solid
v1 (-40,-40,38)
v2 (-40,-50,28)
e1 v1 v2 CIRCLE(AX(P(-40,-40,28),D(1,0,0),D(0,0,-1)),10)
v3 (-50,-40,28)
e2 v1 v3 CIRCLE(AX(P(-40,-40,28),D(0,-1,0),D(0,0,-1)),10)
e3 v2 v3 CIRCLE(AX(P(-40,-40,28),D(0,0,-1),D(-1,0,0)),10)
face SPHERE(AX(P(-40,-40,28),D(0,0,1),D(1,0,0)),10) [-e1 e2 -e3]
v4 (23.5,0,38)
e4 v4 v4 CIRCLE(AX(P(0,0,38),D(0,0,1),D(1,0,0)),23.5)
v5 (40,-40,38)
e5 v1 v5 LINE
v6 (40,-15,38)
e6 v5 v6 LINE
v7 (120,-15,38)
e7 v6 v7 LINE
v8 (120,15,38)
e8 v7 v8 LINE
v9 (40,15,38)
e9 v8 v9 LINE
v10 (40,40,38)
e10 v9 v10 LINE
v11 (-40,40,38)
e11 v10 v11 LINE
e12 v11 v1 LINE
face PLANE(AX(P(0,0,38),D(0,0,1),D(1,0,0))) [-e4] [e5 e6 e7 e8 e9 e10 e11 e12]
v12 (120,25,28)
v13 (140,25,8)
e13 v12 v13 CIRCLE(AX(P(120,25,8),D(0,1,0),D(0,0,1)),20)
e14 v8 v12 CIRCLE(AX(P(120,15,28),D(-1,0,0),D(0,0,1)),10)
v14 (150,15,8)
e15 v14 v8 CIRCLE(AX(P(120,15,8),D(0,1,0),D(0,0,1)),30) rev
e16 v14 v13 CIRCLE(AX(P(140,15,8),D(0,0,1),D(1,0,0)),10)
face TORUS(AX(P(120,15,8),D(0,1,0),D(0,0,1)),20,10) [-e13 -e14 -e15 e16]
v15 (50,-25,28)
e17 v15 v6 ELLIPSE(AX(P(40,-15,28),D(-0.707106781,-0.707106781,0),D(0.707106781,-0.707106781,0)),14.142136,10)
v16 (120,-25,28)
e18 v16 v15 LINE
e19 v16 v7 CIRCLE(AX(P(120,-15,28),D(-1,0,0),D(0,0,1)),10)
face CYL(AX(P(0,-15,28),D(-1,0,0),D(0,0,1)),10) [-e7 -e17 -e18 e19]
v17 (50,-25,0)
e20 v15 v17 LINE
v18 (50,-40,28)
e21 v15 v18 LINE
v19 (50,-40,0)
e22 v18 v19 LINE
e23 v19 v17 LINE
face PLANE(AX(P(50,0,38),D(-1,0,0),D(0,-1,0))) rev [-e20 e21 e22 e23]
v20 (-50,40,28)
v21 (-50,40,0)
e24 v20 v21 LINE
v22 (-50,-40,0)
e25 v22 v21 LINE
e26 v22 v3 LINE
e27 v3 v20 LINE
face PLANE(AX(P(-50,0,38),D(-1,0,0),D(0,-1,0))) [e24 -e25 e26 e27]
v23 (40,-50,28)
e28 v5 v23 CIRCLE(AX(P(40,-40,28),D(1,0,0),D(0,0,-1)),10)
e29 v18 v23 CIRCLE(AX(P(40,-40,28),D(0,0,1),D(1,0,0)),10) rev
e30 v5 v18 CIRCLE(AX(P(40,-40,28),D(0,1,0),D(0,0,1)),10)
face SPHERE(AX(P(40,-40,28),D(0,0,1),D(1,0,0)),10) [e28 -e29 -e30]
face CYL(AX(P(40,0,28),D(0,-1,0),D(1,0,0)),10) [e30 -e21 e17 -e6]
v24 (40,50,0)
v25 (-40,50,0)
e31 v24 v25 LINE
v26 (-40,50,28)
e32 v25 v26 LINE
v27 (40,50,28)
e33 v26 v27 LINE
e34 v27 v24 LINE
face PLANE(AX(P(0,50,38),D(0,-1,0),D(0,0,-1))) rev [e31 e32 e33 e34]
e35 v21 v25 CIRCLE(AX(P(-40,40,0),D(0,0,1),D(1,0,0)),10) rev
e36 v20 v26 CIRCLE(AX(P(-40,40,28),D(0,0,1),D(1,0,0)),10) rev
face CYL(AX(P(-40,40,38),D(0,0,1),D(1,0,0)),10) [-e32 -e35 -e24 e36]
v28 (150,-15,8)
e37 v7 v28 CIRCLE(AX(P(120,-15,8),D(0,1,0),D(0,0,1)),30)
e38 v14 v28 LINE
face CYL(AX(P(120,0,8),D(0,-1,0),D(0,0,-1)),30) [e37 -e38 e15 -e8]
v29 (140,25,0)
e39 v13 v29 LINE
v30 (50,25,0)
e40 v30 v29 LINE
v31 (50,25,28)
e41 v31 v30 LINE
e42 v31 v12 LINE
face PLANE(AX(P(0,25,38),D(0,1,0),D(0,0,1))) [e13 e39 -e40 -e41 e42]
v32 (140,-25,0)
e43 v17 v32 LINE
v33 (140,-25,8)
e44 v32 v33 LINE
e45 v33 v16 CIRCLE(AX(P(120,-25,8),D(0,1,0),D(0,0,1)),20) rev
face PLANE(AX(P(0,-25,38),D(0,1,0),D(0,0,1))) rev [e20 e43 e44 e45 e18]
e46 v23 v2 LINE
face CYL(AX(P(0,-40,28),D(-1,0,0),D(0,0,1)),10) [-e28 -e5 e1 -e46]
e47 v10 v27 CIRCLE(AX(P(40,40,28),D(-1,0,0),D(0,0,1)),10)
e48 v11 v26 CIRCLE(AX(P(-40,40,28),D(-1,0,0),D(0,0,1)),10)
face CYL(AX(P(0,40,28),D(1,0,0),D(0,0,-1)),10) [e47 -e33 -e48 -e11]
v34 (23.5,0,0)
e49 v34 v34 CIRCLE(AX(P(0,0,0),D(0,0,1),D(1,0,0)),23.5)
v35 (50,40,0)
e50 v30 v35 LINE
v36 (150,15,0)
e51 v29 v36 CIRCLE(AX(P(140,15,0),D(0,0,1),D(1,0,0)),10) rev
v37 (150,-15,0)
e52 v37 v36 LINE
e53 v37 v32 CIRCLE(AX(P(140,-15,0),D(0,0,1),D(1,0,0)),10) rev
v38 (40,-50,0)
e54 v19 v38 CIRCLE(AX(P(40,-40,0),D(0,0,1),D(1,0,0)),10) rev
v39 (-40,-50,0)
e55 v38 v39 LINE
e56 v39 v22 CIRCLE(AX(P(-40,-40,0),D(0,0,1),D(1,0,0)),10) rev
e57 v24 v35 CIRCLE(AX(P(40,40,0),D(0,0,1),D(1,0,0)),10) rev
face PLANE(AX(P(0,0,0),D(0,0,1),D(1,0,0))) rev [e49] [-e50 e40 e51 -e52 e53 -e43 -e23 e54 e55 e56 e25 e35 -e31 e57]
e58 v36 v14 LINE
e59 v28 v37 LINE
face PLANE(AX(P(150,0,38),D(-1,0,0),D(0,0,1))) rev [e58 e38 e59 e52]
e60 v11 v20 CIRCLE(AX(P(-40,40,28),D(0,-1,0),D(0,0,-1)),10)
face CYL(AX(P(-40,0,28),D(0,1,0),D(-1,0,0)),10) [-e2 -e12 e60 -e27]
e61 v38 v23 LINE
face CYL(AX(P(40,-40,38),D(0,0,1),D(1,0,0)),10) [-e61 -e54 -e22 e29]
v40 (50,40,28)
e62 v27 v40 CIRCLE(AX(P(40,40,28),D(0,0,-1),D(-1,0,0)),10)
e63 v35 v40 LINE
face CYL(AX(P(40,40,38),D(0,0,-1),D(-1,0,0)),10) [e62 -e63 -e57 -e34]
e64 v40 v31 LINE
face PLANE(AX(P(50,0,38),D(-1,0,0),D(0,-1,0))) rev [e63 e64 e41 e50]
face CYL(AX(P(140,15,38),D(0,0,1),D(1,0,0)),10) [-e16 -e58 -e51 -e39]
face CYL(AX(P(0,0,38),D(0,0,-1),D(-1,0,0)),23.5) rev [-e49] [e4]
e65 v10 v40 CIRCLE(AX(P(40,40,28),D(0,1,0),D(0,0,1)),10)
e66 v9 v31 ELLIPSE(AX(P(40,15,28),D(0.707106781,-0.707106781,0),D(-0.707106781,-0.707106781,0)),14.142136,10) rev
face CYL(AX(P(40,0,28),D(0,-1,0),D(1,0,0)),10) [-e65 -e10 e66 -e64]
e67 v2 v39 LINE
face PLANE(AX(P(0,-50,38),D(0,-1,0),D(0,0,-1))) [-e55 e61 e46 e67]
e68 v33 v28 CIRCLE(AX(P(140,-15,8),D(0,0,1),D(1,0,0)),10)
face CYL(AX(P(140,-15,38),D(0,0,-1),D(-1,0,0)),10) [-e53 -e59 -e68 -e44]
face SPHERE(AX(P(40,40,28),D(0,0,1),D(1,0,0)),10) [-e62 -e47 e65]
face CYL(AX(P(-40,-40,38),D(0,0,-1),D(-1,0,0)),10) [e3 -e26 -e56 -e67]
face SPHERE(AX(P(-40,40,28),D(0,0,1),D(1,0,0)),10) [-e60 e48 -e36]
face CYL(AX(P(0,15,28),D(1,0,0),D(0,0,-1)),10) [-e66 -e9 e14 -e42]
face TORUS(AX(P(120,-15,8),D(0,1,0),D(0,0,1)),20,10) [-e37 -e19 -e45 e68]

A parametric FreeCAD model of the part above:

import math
import FreeCAD as App
import Part
import Sketcher
from FreeCAD import Vector


def edges_at(feature, points):
    """Names of the edges that pass closest to the given points."""
    edges = feature.Shape.Edges
    near = lambda p: min(range(len(edges)), key=lambda i: edges[i].distToShape(Part.Vertex(*p))[0])
    return sorted({f"Edge{near(p) + 1}" for p in points})

doc = App.newDocument("Part")
params = doc.addObject("Spreadsheet::Sheet", "Params")
for row, (alias, value) in enumerate([
    ("sketch1_radius", "23.5 mm"),
    ("sketch1_width", "100 mm"),
    ("sketch1_height", "25 mm"),
    ("pad1_length", "38 mm"),
    ("fillet_radius", "10 mm"),
    ("fillet2_radius", "30 mm"),
    ("fillet3_radius", "10 mm"),
], start=1):
    params.set(f"A{row}", alias)
    params.set(f"B{row}", "=" + value)
    params.setAlias(f"B{row}", alias)

body = doc.addObject("PartDesign::Body", "Body")

# Sketch on XY plane
sketch1 = body.newObject("Sketcher::SketchObject", "Sketch")
sketch1.AttachmentSupport = (doc.getObject("XY_Plane"), [""])
sketch1.MapMode = "FlatFace"
sketch1.addGeometry(Part.LineSegment(Vector(-50, 50, 0), Vector(-50, -50, 0)), False)
sketch1.addGeometry(Part.LineSegment(Vector(-50, -50, 0), Vector(50, -50, 0)), False)
sketch1.addGeometry(Part.LineSegment(Vector(50, -50, 0), Vector(50, -25, 0)), False)
sketch1.addGeometry(Part.LineSegment(Vector(50, -25, 0), Vector(150, -25, 0)), False)
sketch1.addGeometry(Part.LineSegment(Vector(150, -25, 0), Vector(150, 25, 0)), False)
sketch1.addGeometry(Part.LineSegment(Vector(150, 25, 0), Vector(50, 25, 0)), False)
sketch1.addGeometry(Part.LineSegment(Vector(50, 25, 0), Vector(50, 50, 0)), False)
sketch1.addGeometry(Part.LineSegment(Vector(50, 50, 0), Vector(-50, 50, 0)), False)
sketch1.addGeometry(Part.ArcOfCircle(Part.Circle(Vector(0, 0, 0), Vector(0, 0, 1), 23.5), math.radians(90), math.radians(180)), False)
sketch1.addGeometry(Part.ArcOfCircle(Part.Circle(Vector(0, 0, 0), Vector(0, 0, 1), 23.5), math.radians(0), math.radians(90)), False)
sketch1.addGeometry(Part.ArcOfCircle(Part.Circle(Vector(0, 0, 0), Vector(0, 0, 1), 23.5), math.radians(-90), math.radians(0)), False)
sketch1.addGeometry(Part.ArcOfCircle(Part.Circle(Vector(0, 0, 0), Vector(0, 0, 1), 23.5), math.radians(180), math.radians(270)), False)
sketch1.addConstraint(Sketcher.Constraint("Coincident", 0, 2, 1, 1))
sketch1.addConstraint(Sketcher.Constraint("Coincident", 1, 2, 2, 1))
sketch1.addConstraint(Sketcher.Constraint("Coincident", 2, 2, 3, 1))
sketch1.addConstraint(Sketcher.Constraint("Coincident", 3, 2, 4, 1))
sketch1.addConstraint(Sketcher.Constraint("Coincident", 4, 2, 5, 1))
sketch1.addConstraint(Sketcher.Constraint("Coincident", 5, 2, 6, 1))
sketch1.addConstraint(Sketcher.Constraint("Coincident", 6, 2, 7, 1))
sketch1.addConstraint(Sketcher.Constraint("Coincident", 7, 2, 0, 1))
sketch1.addConstraint(Sketcher.Constraint("Tangent", 8, 1, 9, 2))
sketch1.addConstraint(Sketcher.Constraint("Tangent", 9, 1, 10, 2))
sketch1.addConstraint(Sketcher.Constraint("Tangent", 10, 1, 11, 2))
sketch1.addConstraint(Sketcher.Constraint("Tangent", 11, 1, 8, 2))
sketch1.addConstraint(Sketcher.Constraint("Vertical", 0))
sketch1.addConstraint(Sketcher.Constraint("Horizontal", 1))
sketch1.addConstraint(Sketcher.Constraint("Vertical", 2))
sketch1.addConstraint(Sketcher.Constraint("Horizontal", 3))
sketch1.addConstraint(Sketcher.Constraint("Vertical", 4))
sketch1.addConstraint(Sketcher.Constraint("Horizontal", 5))
sketch1.addConstraint(Sketcher.Constraint("Vertical", 6))
sketch1.addConstraint(Sketcher.Constraint("Horizontal", 7))
sketch1.addConstraint(Sketcher.Constraint("Coincident", 8, 3, -1, 1))
sketch1.addConstraint(Sketcher.Constraint("Equal", 8, 9))
sketch1.addConstraint(Sketcher.Constraint("Symmetric", 0, 2, 6, 2, -1, 1))
sketch1.addConstraint(Sketcher.Constraint("Symmetric", 2, 2, 5, 2, -1))
sketch1.addConstraint(Sketcher.Constraint("PointOnObject", 8, 1, -2))
sketch1.addConstraint(Sketcher.Constraint("PointOnObject", 9, 1, -1))
sketch1.addConstraint(Sketcher.Constraint("PointOnObject", 10, 1, -2))
sketch1.addConstraint(Sketcher.Constraint("PointOnObject", 11, 1, -1))
sketch1.addConstraint(Sketcher.Constraint("Equal", 1, 3))
sketch1.addConstraint(Sketcher.Constraint("Equal", 7, 0))
sketch1.addConstraint(Sketcher.Constraint("Radius", 8, 23.5))
sketch1.addConstraint(Sketcher.Constraint("DistanceX", 1, 1, 1, 2, 100.0))
sketch1.addConstraint(Sketcher.Constraint("DistanceY", 2, 1, 2, 2, 25.0))
sketch1.setExpression("Constraints[30]", "Params.sketch1_radius")
sketch1.setExpression("Constraints[31]", "Params.sketch1_width")
sketch1.setExpression("Constraints[32]", "Params.sketch1_height")
pad1 = body.newObject("PartDesign::Pad", "Pad")
pad1.Profile = sketch1
pad1.setExpression("Length", "Params.pad1_length")
doc.recompute()

fillet = body.newObject("PartDesign::Fillet", "Fillet")
fillet.Base = (pad1, edges_at(pad1, [
    (50, -50, 19),
    (-50, -50, 19),
    (-50, 50, 19),
    (50, 50, 19),
]))
fillet.setExpression("Radius", "Params.fillet_radius")
doc.recompute()

fillet2 = body.newObject("PartDesign::Fillet", "Fillet001")
fillet2.Base = (fillet, edges_at(fillet, [(150, 0, 38)]))
fillet2.setExpression("Radius", "Params.fillet2_radius")
doc.recompute()

fillet3 = body.newObject("PartDesign::Fillet", "Fillet002")
fillet3.Base = (fillet2, edges_at(fillet2, [
    (85, 25, 38),
    (50, 32.5, 38),
    (0, 50, 38),
    (-50, 0, 38),
    (0, -50, 38),
    (50, -32.5, 38),
    (-47.071, 47.071, 38),
    (-47.071, -47.071, 38),
    (85, -25, 38),
    (47.071, -47.071, 38),
    (47.071, 47.071, 38),
    (150, 25, 4),
    (141.213, 25, 29.213),
    (150, -25, 4),
    (141.213, -25, 29.213),
]))
fillet3.setExpression("Radius", "Params.fillet3_radius")

doc.recompute()
